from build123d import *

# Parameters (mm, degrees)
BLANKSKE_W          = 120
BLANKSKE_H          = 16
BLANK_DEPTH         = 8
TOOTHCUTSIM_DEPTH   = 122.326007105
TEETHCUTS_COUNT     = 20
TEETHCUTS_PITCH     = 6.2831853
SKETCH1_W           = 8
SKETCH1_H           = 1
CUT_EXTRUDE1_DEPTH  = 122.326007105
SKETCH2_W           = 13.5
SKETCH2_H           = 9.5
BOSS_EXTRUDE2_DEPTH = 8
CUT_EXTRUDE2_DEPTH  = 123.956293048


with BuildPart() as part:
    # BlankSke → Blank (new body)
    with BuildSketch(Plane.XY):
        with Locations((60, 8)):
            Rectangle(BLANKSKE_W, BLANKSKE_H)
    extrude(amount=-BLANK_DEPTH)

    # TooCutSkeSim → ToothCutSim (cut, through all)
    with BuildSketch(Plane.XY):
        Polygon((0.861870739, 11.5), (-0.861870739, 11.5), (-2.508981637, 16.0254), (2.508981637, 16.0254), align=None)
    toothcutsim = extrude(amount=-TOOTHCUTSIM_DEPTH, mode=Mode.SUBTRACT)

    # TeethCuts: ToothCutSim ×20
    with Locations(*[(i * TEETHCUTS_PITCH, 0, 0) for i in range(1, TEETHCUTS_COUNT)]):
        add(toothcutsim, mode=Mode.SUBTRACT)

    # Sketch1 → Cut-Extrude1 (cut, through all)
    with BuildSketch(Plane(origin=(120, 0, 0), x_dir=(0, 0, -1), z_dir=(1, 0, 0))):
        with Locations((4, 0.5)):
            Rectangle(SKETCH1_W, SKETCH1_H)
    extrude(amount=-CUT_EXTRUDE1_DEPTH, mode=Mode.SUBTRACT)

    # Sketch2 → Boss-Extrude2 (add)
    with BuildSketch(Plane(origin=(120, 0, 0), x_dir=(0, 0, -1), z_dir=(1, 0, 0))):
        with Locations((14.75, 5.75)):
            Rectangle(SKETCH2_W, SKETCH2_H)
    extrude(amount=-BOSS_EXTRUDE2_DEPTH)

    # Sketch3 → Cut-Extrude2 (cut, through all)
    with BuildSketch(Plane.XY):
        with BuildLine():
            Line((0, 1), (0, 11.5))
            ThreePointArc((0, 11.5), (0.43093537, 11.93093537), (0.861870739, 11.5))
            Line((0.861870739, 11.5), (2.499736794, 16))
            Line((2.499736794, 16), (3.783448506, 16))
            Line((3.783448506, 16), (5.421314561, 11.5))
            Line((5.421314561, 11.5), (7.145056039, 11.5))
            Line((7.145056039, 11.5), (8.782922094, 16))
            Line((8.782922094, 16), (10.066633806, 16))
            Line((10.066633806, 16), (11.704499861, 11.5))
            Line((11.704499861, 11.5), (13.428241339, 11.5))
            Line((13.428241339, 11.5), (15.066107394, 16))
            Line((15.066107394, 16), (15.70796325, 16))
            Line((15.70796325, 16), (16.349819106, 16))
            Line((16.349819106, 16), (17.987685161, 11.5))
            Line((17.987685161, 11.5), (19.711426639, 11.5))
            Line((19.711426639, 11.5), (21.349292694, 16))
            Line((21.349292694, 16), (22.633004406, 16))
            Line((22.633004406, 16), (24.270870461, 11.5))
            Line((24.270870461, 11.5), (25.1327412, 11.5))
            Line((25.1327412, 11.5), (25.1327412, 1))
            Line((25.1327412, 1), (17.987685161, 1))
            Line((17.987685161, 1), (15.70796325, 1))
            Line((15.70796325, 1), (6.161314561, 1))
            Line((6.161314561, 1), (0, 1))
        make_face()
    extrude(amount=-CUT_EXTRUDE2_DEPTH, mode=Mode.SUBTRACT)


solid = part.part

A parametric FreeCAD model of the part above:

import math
import FreeCAD as App
import Part
import Sketcher
from FreeCAD import Vector
Q = App.Units.Quantity

doc = App.newDocument("Part")
body = doc.addObject("PartDesign::Body", "Body")

sketch1 = doc.addObject("Sketcher::SketchObject", "Sketch")
body.addObject(sketch1)
sketch1.AttachmentSupport = (doc.XY_Plane, [""])
sketch1.MapMode = "FlatFace"
sketch1.addGeometry(Part.LineSegment(Vector(0, 16, 0), Vector(0, 0, 0)), False)
sketch1.addGeometry(Part.LineSegment(Vector(0, 0, 0), Vector(120, 0, 0)), False)
sketch1.addGeometry(Part.LineSegment(Vector(120, 0, 0), Vector(120, 16, 0)), False)
sketch1.addGeometry(Part.LineSegment(Vector(120, 16, 0), Vector(0, 16, 0)), False)
sketch1.addConstraint(Sketcher.Constraint("Coincident", 0, 2, 1, 1))
sketch1.addConstraint(Sketcher.Constraint("Coincident", 1, 2, 2, 1))
sketch1.addConstraint(Sketcher.Constraint("Coincident", 2, 2, 3, 1))
sketch1.addConstraint(Sketcher.Constraint("Coincident", 3, 2, 0, 1))
sketch1.addConstraint(Sketcher.Constraint("Vertical", 0))
sketch1.addConstraint(Sketcher.Constraint("Horizontal", 1))
sketch1.addConstraint(Sketcher.Constraint("Vertical", 2))
sketch1.addConstraint(Sketcher.Constraint("Horizontal", 3))
sketch1.addConstraint(Sketcher.Constraint("Coincident", 0, 2, -1, 1))
sketch1.addConstraint(Sketcher.Constraint("DistanceX", 1, 1, 1, 2, 120.0))
sketch1.addConstraint(Sketcher.Constraint("DistanceY", 0, 2, 0, 1, 16.0))
pad1 = doc.addObject("PartDesign::Pad", "Pad")
body.addObject(pad1)
pad1.Profile = sketch1
pad1.Length = 8
pad1.Reversed = True

sketch2 = doc.addObject("Sketcher::SketchObject", "Sketch001")
body.addObject(sketch2)
sketch2.AttachmentSupport = (doc.XY_Plane, [""])
sketch2.MapMode = "FlatFace"
sketch2.addGeometry(Part.LineSegment(Vector(-0.861871, 11.5, 0), Vector(0.861871, 11.5, 0)), False)
sketch2.addGeometry(Part.LineSegment(Vector(0.861871, 11.5, 0), Vector(2.508982, 16.0254, 0)), False)
sketch2.addGeometry(Part.LineSegment(Vector(2.508982, 16.0254, 0), Vector(-2.508982, 16.0254, 0)), False)
sketch2.addGeometry(Part.LineSegment(Vector(-2.508982, 16.0254, 0), Vector(-0.861871, 11.5, 0)), False)
sketch2.addConstraint(Sketcher.Constraint("Coincident", 0, 2, 1, 1))
sketch2.addConstraint(Sketcher.Constraint("Coincident", 1, 2, 2, 1))
sketch2.addConstraint(Sketcher.Constraint("Coincident", 2, 2, 3, 1))
sketch2.addConstraint(Sketcher.Constraint("Coincident", 3, 2, 0, 1))
sketch2.addConstraint(Sketcher.Constraint("Horizontal", 0))
sketch2.addConstraint(Sketcher.Constraint("Horizontal", 2))
sketch2.addConstraint(Sketcher.Constraint("Equal", 1, 3))
sketch2.addConstraint(Sketcher.Constraint("Angle", 1, Q("70 deg")))
sketch2.addConstraint(Sketcher.Constraint("DistanceY", -1, 1, 0, 2, 11.5))
sketch2.addConstraint(Sketcher.Constraint("DistanceX", 0, 1, 0, 2, 1.723741))
sketch2.addConstraint(Sketcher.Constraint("DistanceY", -1, 1, 1, 2, 16.0254))
sketch2.addConstraint(Sketcher.Constraint("DistanceX", -1, 1, 0, 2, 0.861871))
pocket1 = doc.addObject("PartDesign::Pocket", "Pocket")
body.addObject(pocket1)
pocket1.Profile = sketch2
pocket1.Type = "ThroughAll"
doc.recompute()

linearpattern = doc.addObject("PartDesign::LinearPattern", "LinearPattern")
body.addObject(linearpattern)
linearpattern.Originals = [pocket1]
linearpattern.Direction = (doc.X_Axis, [""])
linearpattern.Mode = "offset"
linearpattern.Offset = 6.283185
linearpattern.Occurrences = 20
body.Tip = linearpattern

sketch3 = doc.addObject("Sketcher::SketchObject", "Sketch002")
body.addObject(sketch3)
sketch3.AttachmentSupport = (doc.YZ_Plane, [""])
sketch3.MapMode = "FlatFace"
sketch3.AttachmentOffset = App.Placement(Vector(0, 0, 120), App.Rotation())
sketch3.addGeometry(Part.LineSegment(Vector(1, 0, 0), Vector(0, 0, 0)), False)
sketch3.addGeometry(Part.LineSegment(Vector(0, 0, 0), Vector(0, -8, 0)), False)
sketch3.addGeometry(Part.LineSegment(Vector(0, -8, 0), Vector(1, -8, 0)), False)
sketch3.addGeometry(Part.LineSegment(Vector(1, -8, 0), Vector(1, 0, 0)), False)
sketch3.addConstraint(Sketcher.Constraint("Coincident", 0, 2, 1, 1))
sketch3.addConstraint(Sketcher.Constraint("Coincident", 1, 2, 2, 1))
sketch3.addConstraint(Sketcher.Constraint("Coincident", 2, 2, 3, 1))
sketch3.addConstraint(Sketcher.Constraint("Coincident", 3, 2, 0, 1))
sketch3.addConstraint(Sketcher.Constraint("Horizontal", 0))
sketch3.addConstraint(Sketcher.Constraint("Vertical", 1))
sketch3.addConstraint(Sketcher.Constraint("Horizontal", 2))
sketch3.addConstraint(Sketcher.Constraint("Vertical", 3))
sketch3.addConstraint(Sketcher.Constraint("Coincident", 0, 2, -1, 1))
sketch3.addConstraint(Sketcher.Constraint("DistanceX", 0, 2, 0, 1, 1.0))
sketch3.addConstraint(Sketcher.Constraint("DistanceY", 1, 2, 1, 1, 8.0))
pocket2 = doc.addObject("PartDesign::Pocket", "Pocket001")
body.addObject(pocket2)
pocket2.Profile = sketch3
pocket2.Type = "ThroughAll"

sketch4 = doc.addObject("Sketcher::SketchObject", "Sketch003")
body.addObject(sketch4)
sketch4.AttachmentSupport = (doc.YZ_Plane, [""])
sketch4.MapMode = "FlatFace"
sketch4.AttachmentOffset = App.Placement(Vector(0, 0, 120), App.Rotation())
sketch4.addGeometry(Part.LineSegment(Vector(10.5, -8, 0), Vector(1, -8, 0)), False)
sketch4.addGeometry(Part.LineSegment(Vector(1, -8, 0), Vector(1, -21.5, 0)), False)
sketch4.addGeometry(Part.LineSegment(Vector(1, -21.5, 0), Vector(10.5, -21.5, 0)), False)
sketch4.addGeometry(Part.LineSegment(Vector(10.5, -21.5, 0), Vector(10.5, -8, 0)), False)
sketch4.addConstraint(Sketcher.Constraint("Coincident", 0, 2, 1, 1))
sketch4.addConstraint(Sketcher.Constraint("Coincident", 1, 2, 2, 1))
sketch4.addConstraint(Sketcher.Constraint("Coincident", 2, 2, 3, 1))
sketch4.addConstraint(Sketcher.Constraint("Coincident", 3, 2, 0, 1))
sketch4.addConstraint(Sketcher.Constraint("Horizontal", 0))
sketch4.addConstraint(Sketcher.Constraint("Vertical", 1))
sketch4.addConstraint(Sketcher.Constraint("Horizontal", 2))
sketch4.addConstraint(Sketcher.Constraint("Vertical", 3))
sketch4.addConstraint(Sketcher.Constraint("DistanceX", 0, 2, 0, 1, 9.5))
sketch4.addConstraint(Sketcher.Constraint("DistanceY", 1, 2, 1, 1, 13.5))
sketch4.addConstraint(Sketcher.Constraint("DistanceX", -1, 1, 0, 2, 1.0))
sketch4.addConstraint(Sketcher.Constraint("DistanceY", 0, 2, -1, 1, 8.0))
pad2 = doc.addObject("PartDesign::Pad", "Pad001")
body.addObject(pad2)
pad2.Profile = sketch4
pad2.Length = 8
pad2.Reversed = True

sketch5 = doc.addObject("Sketcher::SketchObject", "Sketch004")
body.addObject(sketch5)
sketch5.AttachmentSupport = (doc.XY_Plane, [""])
sketch5.MapMode = "FlatFace"
sketch5.addGeometry(Part.LineSegment(Vector(0, 11.5, 0), Vector(0, 1, 0)), False)
sketch5.addGeometry(Part.LineSegment(Vector(0, 1, 0), Vector(25.132741, 1, 0)), False)
sketch5.addGeometry(Part.LineSegment(Vector(25.132741, 1, 0), Vector(25.132741, 11.5, 0)), False)
sketch5.addGeometry(Part.LineSegment(Vector(25.132741, 11.5, 0), Vector(24.27087, 11.5, 0)), False)
sketch5.addGeometry(Part.LineSegment(Vector(24.27087, 11.5, 0), Vector(22.633004, 16, 0)), False)
sketch5.addGeometry(Part.LineSegment(Vector(22.633004, 16, 0), Vector(21.349293, 16, 0)), False)
sketch5.addGeometry(Part.LineSegment(Vector(21.349293, 16, 0), Vector(19.711427, 11.5, 0)), False)
sketch5.addGeometry(Part.LineSegment(Vector(19.711427, 11.5, 0), Vector(17.987685, 11.5, 0)), False)
sketch5.addGeometry(Part.LineSegment(Vector(17.987685, 11.5, 0), Vector(16.349819, 16, 0)), False)
sketch5.addGeometry(Part.LineSegment(Vector(16.349819, 16, 0), Vector(15.066107, 16, 0)), False)
sketch5.addGeometry(Part.LineSegment(Vector(15.066107, 16, 0), Vector(13.428241, 11.5, 0)), False)
sketch5.addGeometry(Part.LineSegment(Vector(13.428241, 11.5, 0), Vector(11.7045, 11.5, 0)), False)
sketch5.addGeometry(Part.LineSegment(Vector(11.7045, 11.5, 0), Vector(10.066634, 16, 0)), False)
sketch5.addGeometry(Part.LineSegment(Vector(10.066634, 16, 0), Vector(8.782922, 16, 0)), False)
sketch5.addGeometry(Part.LineSegment(Vector(8.782922, 16, 0), Vector(7.145056, 11.5, 0)), False)
sketch5.addGeometry(Part.LineSegment(Vector(7.145056, 11.5, 0), Vector(5.421315, 11.5, 0)), False)
sketch5.addGeometry(Part.LineSegment(Vector(5.421315, 11.5, 0), Vector(3.783449, 16, 0)), False)
sketch5.addGeometry(Part.LineSegment(Vector(3.783449, 16, 0), Vector(2.499737, 16, 0)), False)
sketch5.addGeometry(Part.LineSegment(Vector(2.499737, 16, 0), Vector(0.861871, 11.5, 0)), False)
sketch5.addGeometry(Part.ArcOfCircle(Part.Circle(Vector(0.430935, 11.5, 0), Vector(0, 0, 1), 0.430935), math.radians(0), math.radians(180)), False)
sketch5.addConstraint(Sketcher.Constraint("Coincident", 0, 2, 1, 1))
sketch5.addConstraint(Sketcher.Constraint("Coincident", 1, 2, 2, 1))
sketch5.addConstraint(Sketcher.Constraint("Coincident", 2, 2, 3, 1))
sketch5.addConstraint(Sketcher.Constraint("Coincident", 3, 2, 4, 1))
sketch5.addConstraint(Sketcher.Constraint("Coincident", 4, 2, 5, 1))
sketch5.addConstraint(Sketcher.Constraint("Coincident", 5, 2, 6, 1))
sketch5.addConstraint(Sketcher.Constraint("Coincident", 6, 2, 7, 1))
sketch5.addConstraint(Sketcher.Constraint("Coincident", 7, 2, 8, 1))
sketch5.addConstraint(Sketcher.Constraint("Coincident", 8, 2, 9, 1))
sketch5.addConstraint(Sketcher.Constraint("Coincident", 9, 2, 10, 1))
sketch5.addConstraint(Sketcher.Constraint("Coincident", 10, 2, 11, 1))
sketch5.addConstraint(Sketcher.Constraint("Coincident", 11, 2, 12, 1))
sketch5.addConstraint(Sketcher.Constraint("Coincident", 12, 2, 13, 1))
sketch5.addConstraint(Sketcher.Constraint("Coincident", 13, 2, 14, 1))
sketch5.addConstraint(Sketcher.Constraint("Coincident", 14, 2, 15, 1))
sketch5.addConstraint(Sketcher.Constraint("Coincident", 15, 2, 16, 1))
sketch5.addConstraint(Sketcher.Constraint("Coincident", 16, 2, 17, 1))
sketch5.addConstraint(Sketcher.Constraint("Coincident", 17, 2, 18, 1))
sketch5.addConstraint(Sketcher.Constraint("Coincident", 18, 2, 19, 1))
sketch5.addConstraint(Sketcher.Constraint("Tangent", 19, 2, 0, 1))
sketch5.addConstraint(Sketcher.Constraint("Vertical", 0))
sketch5.addConstraint(Sketcher.Constraint("Horizontal", 1))
sketch5.addConstraint(Sketcher.Constraint("Vertical", 2))
sketch5.addConstraint(Sketcher.Constraint("Horizontal", 3))
sketch5.addConstraint(Sketcher.Constraint("Horizontal", 5))
sketch5.addConstraint(Sketcher.Constraint("Horizontal", 7))
sketch5.addConstraint(Sketcher.Constraint("Horizontal", 9))
sketch5.addConstraint(Sketcher.Constraint("Horizontal", 11))
sketch5.addConstraint(Sketcher.Constraint("Horizontal", 13))
sketch5.addConstraint(Sketcher.Constraint("Horizontal", 15))
sketch5.addConstraint(Sketcher.Constraint("Horizontal", 17))
sketch5.addConstraint(Sketcher.Constraint("PointOnObject", 0, 2, -2))
sketch5.addConstraint(Sketcher.Constraint("Parallel", 4, 8))
sketch5.addConstraint(Sketcher.Constraint("Parallel", 6, 10))
sketch5.addConstraint(Sketcher.Constraint("Parallel", 8, 12))
sketch5.addConstraint(Sketcher.Constraint("Parallel", 10, 14))
sketch5.addConstraint(Sketcher.Constraint("Parallel", 12, 16))
sketch5.addConstraint(Sketcher.Constraint("Parallel", 14, 18))
sketch5.addConstraint(Sketcher.Constraint("Horizontal", 19, 3, 2, 2))
sketch5.addConstraint(Sketcher.Constraint("Horizontal", 3, 2, 6, 2))
sketch5.addConstraint(Sketcher.Constraint("Horizontal", 5, 2, 8, 2))
sketch5.addConstraint(Sketcher.Constraint("Horizontal", 7, 2, 10, 2))
sketch5.addConstraint(Sketcher.Constraint("Horizontal", 9, 2, 12, 2))
sketch5.addConstraint(Sketcher.Constraint("Horizontal", 11, 2, 14, 2))
sketch5.addConstraint(Sketcher.Constraint("Horizontal", 13, 2, 16, 2))
sketch5.addConstraint(Sketcher.Constraint("Horizontal", 15, 2, 18, 2))
sketch5.addConstraint(Sketcher.Constraint("Equal", 5, 9))
sketch5.addConstraint(Sketcher.Constraint("Equal", 7, 11))
sketch5.addConstraint(Sketcher.Constraint("Equal", 9, 13))
sketch5.addConstraint(Sketcher.Constraint("Equal", 11, 15))
sketch5.addConstraint(Sketcher.Constraint("Equal", 13, 17))
sketch5.addConstraint(Sketcher.Constraint("Equal", 4, 6))
sketch5.addConstraint(Sketcher.Constraint("Angle", 4, Q("110 deg")))
sketch5.addConstraint(Sketcher.Constraint("DistanceY", 0, 2, 0, 1, 10.5))
sketch5.addConstraint(Sketcher.Constraint("DistanceY", -1, 1, 0, 2, 1.0))
sketch5.addConstraint(Sketcher.Constraint("DistanceY", -1, 1, 4, 2, 16.0))
sketch5.addConstraint(Sketcher.Constraint("Radius", 19, 0.430935))
sketch5.addConstraint(Sketcher.Constraint("DistanceX", 1, 1, 1, 2, 25.132741))
sketch5.addConstraint(Sketcher.Constraint("DistanceX", 3, 2, 3, 1, 0.861871))
sketch5.addConstraint(Sketcher.Constraint("DistanceX", 5, 2, 5, 1, 1.283712))
pocket3 = doc.addObject("PartDesign::Pocket", "Pocket002")
body.addObject(pocket3)
pocket3.Profile = sketch5
pocket3.Type = "ThroughAll"

doc.recompute()
